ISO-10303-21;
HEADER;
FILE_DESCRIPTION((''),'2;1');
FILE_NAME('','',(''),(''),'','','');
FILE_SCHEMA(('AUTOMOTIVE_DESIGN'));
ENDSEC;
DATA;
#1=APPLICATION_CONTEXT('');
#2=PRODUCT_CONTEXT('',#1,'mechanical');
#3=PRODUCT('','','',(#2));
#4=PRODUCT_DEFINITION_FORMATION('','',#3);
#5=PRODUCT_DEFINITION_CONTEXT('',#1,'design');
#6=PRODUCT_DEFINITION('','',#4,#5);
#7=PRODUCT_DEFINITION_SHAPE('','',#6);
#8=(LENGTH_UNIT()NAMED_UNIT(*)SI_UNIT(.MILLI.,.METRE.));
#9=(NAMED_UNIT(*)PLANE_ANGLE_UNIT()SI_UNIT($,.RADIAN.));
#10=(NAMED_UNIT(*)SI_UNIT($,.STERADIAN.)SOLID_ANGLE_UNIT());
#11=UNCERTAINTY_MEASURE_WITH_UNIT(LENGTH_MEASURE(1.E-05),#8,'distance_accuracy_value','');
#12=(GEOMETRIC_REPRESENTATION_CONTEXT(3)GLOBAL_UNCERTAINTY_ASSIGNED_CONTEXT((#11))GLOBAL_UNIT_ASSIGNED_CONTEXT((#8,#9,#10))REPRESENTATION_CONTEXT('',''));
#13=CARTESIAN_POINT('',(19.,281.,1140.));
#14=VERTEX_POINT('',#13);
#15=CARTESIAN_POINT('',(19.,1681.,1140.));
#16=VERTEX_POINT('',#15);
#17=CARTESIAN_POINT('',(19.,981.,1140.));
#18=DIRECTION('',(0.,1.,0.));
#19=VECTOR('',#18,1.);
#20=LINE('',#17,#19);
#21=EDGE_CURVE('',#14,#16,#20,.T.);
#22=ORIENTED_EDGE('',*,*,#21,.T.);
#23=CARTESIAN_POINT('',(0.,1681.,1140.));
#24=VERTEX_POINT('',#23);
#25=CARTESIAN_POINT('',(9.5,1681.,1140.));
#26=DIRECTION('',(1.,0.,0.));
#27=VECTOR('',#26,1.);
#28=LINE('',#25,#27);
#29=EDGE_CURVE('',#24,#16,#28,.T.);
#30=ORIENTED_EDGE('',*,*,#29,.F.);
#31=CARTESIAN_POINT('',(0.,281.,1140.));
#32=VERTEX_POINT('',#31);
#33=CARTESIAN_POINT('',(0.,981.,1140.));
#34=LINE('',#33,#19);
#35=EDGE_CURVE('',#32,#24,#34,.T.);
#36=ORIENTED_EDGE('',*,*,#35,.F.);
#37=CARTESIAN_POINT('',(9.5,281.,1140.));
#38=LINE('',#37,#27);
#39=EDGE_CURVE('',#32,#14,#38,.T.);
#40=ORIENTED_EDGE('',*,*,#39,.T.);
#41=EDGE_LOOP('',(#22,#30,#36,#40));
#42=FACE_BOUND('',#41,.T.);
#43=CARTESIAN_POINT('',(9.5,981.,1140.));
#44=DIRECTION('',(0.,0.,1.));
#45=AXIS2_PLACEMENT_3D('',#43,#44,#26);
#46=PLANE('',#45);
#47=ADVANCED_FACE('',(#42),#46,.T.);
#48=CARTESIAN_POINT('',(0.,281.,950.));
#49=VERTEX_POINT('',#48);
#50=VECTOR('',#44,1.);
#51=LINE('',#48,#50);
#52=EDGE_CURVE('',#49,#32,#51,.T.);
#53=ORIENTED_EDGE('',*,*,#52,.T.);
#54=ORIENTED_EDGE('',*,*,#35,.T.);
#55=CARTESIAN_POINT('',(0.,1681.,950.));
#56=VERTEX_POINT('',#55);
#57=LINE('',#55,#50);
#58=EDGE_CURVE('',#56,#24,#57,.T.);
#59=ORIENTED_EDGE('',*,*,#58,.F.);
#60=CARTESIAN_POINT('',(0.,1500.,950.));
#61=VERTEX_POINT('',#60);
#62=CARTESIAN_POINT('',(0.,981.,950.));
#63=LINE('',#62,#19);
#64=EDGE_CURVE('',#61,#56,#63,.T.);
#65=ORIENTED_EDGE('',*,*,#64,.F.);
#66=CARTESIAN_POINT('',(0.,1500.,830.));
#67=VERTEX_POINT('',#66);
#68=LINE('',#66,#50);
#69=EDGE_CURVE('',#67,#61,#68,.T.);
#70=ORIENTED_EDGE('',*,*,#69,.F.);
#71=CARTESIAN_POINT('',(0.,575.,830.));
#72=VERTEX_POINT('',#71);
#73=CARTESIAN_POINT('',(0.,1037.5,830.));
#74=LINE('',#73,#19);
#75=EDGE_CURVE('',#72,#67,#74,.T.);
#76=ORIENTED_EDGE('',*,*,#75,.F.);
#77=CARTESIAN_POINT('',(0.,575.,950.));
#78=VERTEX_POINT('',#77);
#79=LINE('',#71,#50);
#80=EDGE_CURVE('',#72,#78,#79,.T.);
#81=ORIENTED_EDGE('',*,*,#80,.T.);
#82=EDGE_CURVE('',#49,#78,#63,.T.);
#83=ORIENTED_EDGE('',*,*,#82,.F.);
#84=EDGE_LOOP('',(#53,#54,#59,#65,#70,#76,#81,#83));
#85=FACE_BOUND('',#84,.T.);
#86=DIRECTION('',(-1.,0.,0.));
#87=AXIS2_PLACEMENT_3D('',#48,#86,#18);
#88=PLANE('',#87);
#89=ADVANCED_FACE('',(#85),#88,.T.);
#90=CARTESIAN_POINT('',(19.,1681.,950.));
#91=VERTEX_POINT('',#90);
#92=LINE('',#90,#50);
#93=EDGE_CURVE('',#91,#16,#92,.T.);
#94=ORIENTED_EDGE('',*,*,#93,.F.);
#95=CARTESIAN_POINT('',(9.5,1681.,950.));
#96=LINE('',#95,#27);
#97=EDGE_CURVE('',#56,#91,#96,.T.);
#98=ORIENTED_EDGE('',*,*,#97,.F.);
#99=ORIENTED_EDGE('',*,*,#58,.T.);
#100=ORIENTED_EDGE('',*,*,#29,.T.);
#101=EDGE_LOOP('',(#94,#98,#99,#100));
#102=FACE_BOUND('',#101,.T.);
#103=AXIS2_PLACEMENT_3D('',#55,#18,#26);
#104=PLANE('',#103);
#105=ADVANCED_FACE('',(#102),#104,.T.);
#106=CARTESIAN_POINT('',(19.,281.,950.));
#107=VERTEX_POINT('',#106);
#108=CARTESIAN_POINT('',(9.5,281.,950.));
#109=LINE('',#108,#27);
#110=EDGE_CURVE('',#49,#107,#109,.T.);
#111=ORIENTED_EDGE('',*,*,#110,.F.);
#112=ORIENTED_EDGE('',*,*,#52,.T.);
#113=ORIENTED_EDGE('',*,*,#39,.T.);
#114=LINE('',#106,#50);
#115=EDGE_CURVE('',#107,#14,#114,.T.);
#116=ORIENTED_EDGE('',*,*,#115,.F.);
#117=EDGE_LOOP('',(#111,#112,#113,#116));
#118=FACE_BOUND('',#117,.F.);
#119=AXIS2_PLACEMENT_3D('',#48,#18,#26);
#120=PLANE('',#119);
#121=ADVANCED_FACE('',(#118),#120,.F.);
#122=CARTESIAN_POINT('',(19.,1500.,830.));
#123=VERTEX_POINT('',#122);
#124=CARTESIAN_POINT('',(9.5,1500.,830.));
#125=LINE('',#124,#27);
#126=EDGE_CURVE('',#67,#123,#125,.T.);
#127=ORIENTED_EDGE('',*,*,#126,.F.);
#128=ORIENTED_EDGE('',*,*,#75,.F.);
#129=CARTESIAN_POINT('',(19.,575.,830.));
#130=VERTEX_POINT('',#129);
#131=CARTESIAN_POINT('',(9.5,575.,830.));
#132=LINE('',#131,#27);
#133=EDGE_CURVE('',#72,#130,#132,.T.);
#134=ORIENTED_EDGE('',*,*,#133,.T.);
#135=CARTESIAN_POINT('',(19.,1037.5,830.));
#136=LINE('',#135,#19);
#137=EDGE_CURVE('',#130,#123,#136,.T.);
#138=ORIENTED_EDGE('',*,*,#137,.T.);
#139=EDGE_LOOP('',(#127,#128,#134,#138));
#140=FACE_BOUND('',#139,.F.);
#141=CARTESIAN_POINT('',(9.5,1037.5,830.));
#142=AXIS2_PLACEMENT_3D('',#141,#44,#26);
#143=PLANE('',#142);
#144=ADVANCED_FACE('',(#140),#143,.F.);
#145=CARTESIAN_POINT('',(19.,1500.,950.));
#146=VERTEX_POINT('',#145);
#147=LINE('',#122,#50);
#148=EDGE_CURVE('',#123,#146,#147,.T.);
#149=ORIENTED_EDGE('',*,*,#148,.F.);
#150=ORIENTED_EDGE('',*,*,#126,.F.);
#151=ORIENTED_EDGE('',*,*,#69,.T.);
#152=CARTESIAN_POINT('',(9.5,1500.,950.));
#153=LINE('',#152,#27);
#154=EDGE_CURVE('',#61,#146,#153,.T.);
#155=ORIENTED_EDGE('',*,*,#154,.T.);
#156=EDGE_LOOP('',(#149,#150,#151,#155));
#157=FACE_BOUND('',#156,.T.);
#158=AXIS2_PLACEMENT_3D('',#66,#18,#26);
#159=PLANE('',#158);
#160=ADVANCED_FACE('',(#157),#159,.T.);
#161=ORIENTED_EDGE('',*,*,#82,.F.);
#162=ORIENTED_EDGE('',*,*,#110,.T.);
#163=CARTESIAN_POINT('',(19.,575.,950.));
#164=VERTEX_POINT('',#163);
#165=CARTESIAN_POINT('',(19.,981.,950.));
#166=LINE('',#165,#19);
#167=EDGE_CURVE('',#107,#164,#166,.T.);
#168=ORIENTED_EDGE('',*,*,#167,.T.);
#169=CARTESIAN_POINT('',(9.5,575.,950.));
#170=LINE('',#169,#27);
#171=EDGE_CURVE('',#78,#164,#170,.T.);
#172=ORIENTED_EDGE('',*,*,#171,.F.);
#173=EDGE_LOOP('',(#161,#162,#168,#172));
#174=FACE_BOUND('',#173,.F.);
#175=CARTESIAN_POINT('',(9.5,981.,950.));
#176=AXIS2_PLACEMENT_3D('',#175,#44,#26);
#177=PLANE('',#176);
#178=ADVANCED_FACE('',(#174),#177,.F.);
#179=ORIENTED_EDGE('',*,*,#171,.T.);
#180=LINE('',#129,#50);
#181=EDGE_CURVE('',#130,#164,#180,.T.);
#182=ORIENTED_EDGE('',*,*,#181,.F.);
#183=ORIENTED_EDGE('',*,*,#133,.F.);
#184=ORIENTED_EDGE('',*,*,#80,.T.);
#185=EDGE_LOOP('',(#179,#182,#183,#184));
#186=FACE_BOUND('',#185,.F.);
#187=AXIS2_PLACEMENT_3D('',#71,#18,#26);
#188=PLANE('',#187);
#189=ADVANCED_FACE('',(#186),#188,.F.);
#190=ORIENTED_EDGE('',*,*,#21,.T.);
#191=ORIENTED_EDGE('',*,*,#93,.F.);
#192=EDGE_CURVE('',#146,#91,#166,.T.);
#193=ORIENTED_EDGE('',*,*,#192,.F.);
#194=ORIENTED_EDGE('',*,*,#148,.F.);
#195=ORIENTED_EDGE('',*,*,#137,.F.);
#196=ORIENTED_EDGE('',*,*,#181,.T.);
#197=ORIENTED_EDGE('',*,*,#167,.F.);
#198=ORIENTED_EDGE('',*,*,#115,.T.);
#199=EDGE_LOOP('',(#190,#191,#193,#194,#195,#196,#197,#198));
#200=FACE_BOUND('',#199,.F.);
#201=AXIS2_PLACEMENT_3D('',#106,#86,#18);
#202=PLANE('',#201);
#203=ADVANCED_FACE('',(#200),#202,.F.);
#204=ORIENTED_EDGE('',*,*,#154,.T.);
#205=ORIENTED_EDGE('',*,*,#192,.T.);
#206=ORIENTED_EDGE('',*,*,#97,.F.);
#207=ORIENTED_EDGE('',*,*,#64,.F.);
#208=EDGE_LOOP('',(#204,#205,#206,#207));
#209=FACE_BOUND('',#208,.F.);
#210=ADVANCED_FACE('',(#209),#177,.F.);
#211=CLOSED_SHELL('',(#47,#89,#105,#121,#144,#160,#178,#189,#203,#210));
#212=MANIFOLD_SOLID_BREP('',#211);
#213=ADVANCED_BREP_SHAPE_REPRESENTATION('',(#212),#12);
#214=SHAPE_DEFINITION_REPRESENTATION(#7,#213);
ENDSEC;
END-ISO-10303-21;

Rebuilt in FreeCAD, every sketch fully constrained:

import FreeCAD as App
import Part
import Sketcher

V = App.Vector


def add_polygon(sketch, points):
    """Adds a closed chain of lines whose ends are joined by coincident constraints."""
    first, n = sketch.GeometryCount, len(points)
    for a, b in zip(points, points[1:] + points[:1]):
        sketch.addGeometry(Part.LineSegment(App.Vector(*a, 0), App.Vector(*b, 0)), False)
    for i in range(n):
        sketch.addConstraint(Sketcher.Constraint("Coincident", first + i, 2, first + (i + 1) % n, 1))

doc = App.newDocument("Part")
params = doc.addObject("Spreadsheet::Sheet", "Params")
for row, (alias, value) in enumerate([
    ("sketch1_width", "19 mm"),
    ("sketch1_height", "1400 mm"),
    ("pad1_length", "190 mm"),
    ("sketch2_width", "19 mm"),
    ("sketch2_height", "925 mm"),
    ("pad2_length", "120 mm"),
], start=1):
    params.set(f"A{row}", alias)
    params.set(f"B{row}", "=" + value)
    params.setAlias(f"B{row}", alias)

body = doc.addObject("PartDesign::Body", "Body")

sketch1 = body.newObject("Sketcher::SketchObject", "Sketch")
sketch1.AttachmentSupport = (doc.getObject("XY_Plane"), [""])
sketch1.MapMode = "FlatFace"
sketch1.AttachmentOffset = App.Placement(V(0, 0, 950), App.Rotation())
add_polygon(sketch1, [(0, 1681), (0, 281), (19, 281), (19, 1681)])
sketch1.addConstraint(Sketcher.Constraint("Vertical", 0))
sketch1.addConstraint(Sketcher.Constraint("Horizontal", 1))
sketch1.addConstraint(Sketcher.Constraint("Vertical", 2))
sketch1.addConstraint(Sketcher.Constraint("Horizontal", 3))
sketch1.addConstraint(Sketcher.Constraint("PointOnObject", 0, 2, -2))
sketch1.addConstraint(Sketcher.Constraint("DistanceX", 1, 1, 1, 2, 19.0))
sketch1.addConstraint(Sketcher.Constraint("DistanceY", 0, 2, 0, 1, 1400.0))
sketch1.addConstraint(Sketcher.Constraint("DistanceY", -1, 1, 0, 2, 281.0))
sketch1.setExpression("Constraints[9]", "Params.sketch1_width")
sketch1.setExpression("Constraints[10]", "Params.sketch1_height")
pad1 = body.newObject("PartDesign::Pad", "Pad")
pad1.Profile = sketch1
pad1.setExpression("Length", "Params.pad1_length")
body2 = doc.addObject("PartDesign::Body", "Body001")

sketch2 = body2.newObject("Sketcher::SketchObject", "Sketch001")
sketch2.AttachmentSupport = (doc.getObject("XY_Plane001"), [""])
sketch2.MapMode = "FlatFace"
sketch2.AttachmentOffset = App.Placement(V(0, 0, 830), App.Rotation())
add_polygon(sketch2, [(0, 1500), (0, 575), (19, 575), (19, 1500)])
sketch2.addConstraint(Sketcher.Constraint("Vertical", 0))
sketch2.addConstraint(Sketcher.Constraint("Horizontal", 1))
sketch2.addConstraint(Sketcher.Constraint("Vertical", 2))
sketch2.addConstraint(Sketcher.Constraint("Horizontal", 3))
sketch2.addConstraint(Sketcher.Constraint("PointOnObject", 0, 2, -2))
sketch2.addConstraint(Sketcher.Constraint("DistanceX", 1, 1, 1, 2, 19.0))
sketch2.addConstraint(Sketcher.Constraint("DistanceY", 0, 2, 0, 1, 925.0))
sketch2.addConstraint(Sketcher.Constraint("DistanceY", -1, 1, 0, 2, 575.0))
sketch2.setExpression("Constraints[9]", "Params.sketch2_width")
sketch2.setExpression("Constraints[10]", "Params.sketch2_height")
pad2 = body2.newObject("PartDesign::Pad", "Pad001")
pad2.Profile = sketch2
pad2.setExpression("Length", "Params.pad2_length")
doc.recompute()

boolean = body2.newObject("PartDesign::Boolean", "Boolean")
boolean.Type = "Fuse"
boolean.addObjects([body])

doc.recompute()
